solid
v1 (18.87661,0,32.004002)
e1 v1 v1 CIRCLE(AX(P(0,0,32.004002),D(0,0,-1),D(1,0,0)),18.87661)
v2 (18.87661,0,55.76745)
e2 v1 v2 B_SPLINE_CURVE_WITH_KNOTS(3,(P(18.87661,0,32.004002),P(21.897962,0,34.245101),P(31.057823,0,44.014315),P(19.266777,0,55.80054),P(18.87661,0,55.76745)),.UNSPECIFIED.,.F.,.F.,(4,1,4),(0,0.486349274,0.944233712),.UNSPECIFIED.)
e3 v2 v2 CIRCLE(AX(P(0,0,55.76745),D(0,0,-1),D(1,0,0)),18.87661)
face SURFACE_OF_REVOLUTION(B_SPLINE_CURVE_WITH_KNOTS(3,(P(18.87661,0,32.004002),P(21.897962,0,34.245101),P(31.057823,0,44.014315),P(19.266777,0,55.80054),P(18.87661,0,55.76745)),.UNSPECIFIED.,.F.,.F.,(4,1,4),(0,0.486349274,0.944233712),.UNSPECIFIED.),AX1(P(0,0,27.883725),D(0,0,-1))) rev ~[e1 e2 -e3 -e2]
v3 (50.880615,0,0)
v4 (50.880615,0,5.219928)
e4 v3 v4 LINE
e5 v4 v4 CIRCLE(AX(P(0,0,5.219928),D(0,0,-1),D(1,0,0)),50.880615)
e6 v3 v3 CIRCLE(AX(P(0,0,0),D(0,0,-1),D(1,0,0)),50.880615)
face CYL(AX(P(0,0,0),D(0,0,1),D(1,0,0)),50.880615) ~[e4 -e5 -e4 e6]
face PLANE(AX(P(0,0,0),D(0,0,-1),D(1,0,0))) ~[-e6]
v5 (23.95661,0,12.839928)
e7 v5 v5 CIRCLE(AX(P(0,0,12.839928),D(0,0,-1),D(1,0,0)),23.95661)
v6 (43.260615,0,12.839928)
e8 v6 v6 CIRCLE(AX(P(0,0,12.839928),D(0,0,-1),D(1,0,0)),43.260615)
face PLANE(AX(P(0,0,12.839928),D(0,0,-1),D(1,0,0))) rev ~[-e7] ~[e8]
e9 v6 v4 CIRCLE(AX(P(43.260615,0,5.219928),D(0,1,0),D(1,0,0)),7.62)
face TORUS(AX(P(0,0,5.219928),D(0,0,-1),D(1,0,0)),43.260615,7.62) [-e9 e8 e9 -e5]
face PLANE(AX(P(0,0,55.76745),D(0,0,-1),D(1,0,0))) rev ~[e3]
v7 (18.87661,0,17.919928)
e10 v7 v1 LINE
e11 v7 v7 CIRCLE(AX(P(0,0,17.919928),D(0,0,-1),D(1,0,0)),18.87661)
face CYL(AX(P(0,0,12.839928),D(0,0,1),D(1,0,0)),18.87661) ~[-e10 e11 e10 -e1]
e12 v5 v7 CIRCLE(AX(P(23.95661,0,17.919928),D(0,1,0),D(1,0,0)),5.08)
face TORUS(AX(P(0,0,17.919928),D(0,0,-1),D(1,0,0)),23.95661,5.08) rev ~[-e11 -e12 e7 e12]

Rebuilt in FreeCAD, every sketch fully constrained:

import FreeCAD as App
import Part
import Sketcher
from FreeCAD import Vector
Q = App.Units.Quantity


def edges_at(feature, points):
    """Names of the edges that pass closest to the given points."""
    edges = feature.Shape.Edges
    near = lambda p: min(range(len(edges)), key=lambda i: edges[i].distToShape(Part.Vertex(*p))[0])
    return sorted({f"Edge{near(p) + 1}" for p in points})

doc = App.newDocument("Part")
params = doc.addObject("Spreadsheet::Sheet", "Params")
for row, (alias, value) in enumerate([
    ("sketch1_width", "1.2600002 in"),
    ("revolution_angle", "360 deg"),
    ("fillet_radius", "0.2 in"),
    ("fillet2_radius", "0.3 in"),
    ("pad1_length", "1 in"),
], start=1):
    params.set(f"A{row}", alias)
    params.set(f"B{row}", "=" + value)
    params.setAlias(f"B{row}", alias)

body = doc.addObject("PartDesign::Body", "Body")

sketch1 = body.newObject("Sketcher::SketchObject", "Sketch")
sketch1.AttachmentSupport = (doc.getObject("XZ_Plane"), [""])
sketch1.MapMode = "FlatFace"
sketch1.addGeometry(Part.LineSegment(Vector(0, 55.76745, 0), Vector(0, 0, 0)), False)
sketch1.addGeometry(Part.LineSegment(Vector(0, 0, 0), Vector(50.880615, 0, 0)), False)
sketch1.addGeometry(Part.LineSegment(Vector(50.880615, 0, 0), Vector(50.880615, 12.839928, 0)), False)
sketch1.addGeometry(Part.LineSegment(Vector(50.880615, 12.839928, 0), Vector(18.87661, 12.839928, 0)), False)
sketch1.addGeometry(Part.LineSegment(Vector(18.87661, 12.839928, 0), Vector(18.87661, 32.004002, 0)), False)
sketch1.addGeometry(Part.BSplineCurve([Vector(18.87661, 32.004002, 0), Vector(21.897962, 34.245101, 0), Vector(31.057823, 44.014315, 0), Vector(19.266777, 55.80054, 0), Vector(18.87661, 55.76745, 0)], [4, 1, 4], [0, 0.486349274, 0.944233712], False, 3, [1, 1, 1, 1, 1], False), False)
sketch1.addGeometry(Part.LineSegment(Vector(18.87661, 55.76745, 0), Vector(0, 55.76745, 0)), False)
sketch1.addConstraint(Sketcher.Constraint("Block", 5))
sketch1.addConstraint(Sketcher.Constraint("Coincident", 0, 2, 1, 1))
sketch1.addConstraint(Sketcher.Constraint("Coincident", 1, 2, 2, 1))
sketch1.addConstraint(Sketcher.Constraint("Coincident", 2, 2, 3, 1))
sketch1.addConstraint(Sketcher.Constraint("Coincident", 3, 2, 4, 1))
sketch1.addConstraint(Sketcher.Constraint("Coincident", 4, 2, 5, 1))
sketch1.addConstraint(Sketcher.Constraint("Coincident", 5, 2, 6, 1))
sketch1.addConstraint(Sketcher.Constraint("Coincident", 6, 2, 0, 1))
sketch1.addConstraint(Sketcher.Constraint("Vertical", 0))
sketch1.addConstraint(Sketcher.Constraint("Horizontal", 1))
sketch1.addConstraint(Sketcher.Constraint("Vertical", 2))
sketch1.addConstraint(Sketcher.Constraint("Horizontal", 3))
sketch1.addConstraint(Sketcher.Constraint("Vertical", 4))
sketch1.addConstraint(Sketcher.Constraint("Horizontal", 6))
sketch1.addConstraint(Sketcher.Constraint("Coincident", 0, 2, -1, 1))
sketch1.addConstraint(Sketcher.Constraint("DistanceX", 3, 2, 3, 1, Q("1.2600002 in")))
sketch1.addConstraint(Sketcher.Constraint("DistanceY", 2, 1, 2, 2, 12.839928))
sketch1.setExpression("Constraints[15]", "Params.sketch1_width")
revolution = body.newObject("PartDesign::Revolution", "Revolution")
revolution.Profile = sketch1
revolution.ReferenceAxis = (sketch1, ["V_Axis"])
revolution.setExpression("Angle", "Params.revolution_angle")
doc.recompute()

fillet = body.newObject("PartDesign::Fillet", "Fillet")
fillet.Base = (revolution, edges_at(revolution, [(-18.877, 0, 12.84)]))
fillet.setExpression("Radius", "Params.fillet_radius")
doc.recompute()

fillet2 = body.newObject("PartDesign::Fillet", "Fillet001")
fillet2.Base = (fillet, edges_at(fillet, [(-50.881, 0, 12.84)]))
fillet2.setExpression("Radius", "Params.fillet2_radius")

sketch2 = body.newObject("Sketcher::SketchObject", "Sketch001")
sketch2.AttachmentSupport = (doc.getObject("XY_Plane"), [""])
sketch2.MapMode = "FlatFace"
sketch2.addGeometry(Part.Circle(Vector(0, 0, 0), Vector(0, 0, 1), 14), False)
sketch2.addConstraint(Sketcher.Constraint("Coincident", 0, 3, -1, 1))
sketch2.addConstraint(Sketcher.Constraint("Diameter", 0, 28.577607))
pad1 = body.newObject("PartDesign::Pad", "Pad")
pad1.Profile = sketch2
pad1.setExpression("Length", "Params.pad1_length")

doc.recompute()
